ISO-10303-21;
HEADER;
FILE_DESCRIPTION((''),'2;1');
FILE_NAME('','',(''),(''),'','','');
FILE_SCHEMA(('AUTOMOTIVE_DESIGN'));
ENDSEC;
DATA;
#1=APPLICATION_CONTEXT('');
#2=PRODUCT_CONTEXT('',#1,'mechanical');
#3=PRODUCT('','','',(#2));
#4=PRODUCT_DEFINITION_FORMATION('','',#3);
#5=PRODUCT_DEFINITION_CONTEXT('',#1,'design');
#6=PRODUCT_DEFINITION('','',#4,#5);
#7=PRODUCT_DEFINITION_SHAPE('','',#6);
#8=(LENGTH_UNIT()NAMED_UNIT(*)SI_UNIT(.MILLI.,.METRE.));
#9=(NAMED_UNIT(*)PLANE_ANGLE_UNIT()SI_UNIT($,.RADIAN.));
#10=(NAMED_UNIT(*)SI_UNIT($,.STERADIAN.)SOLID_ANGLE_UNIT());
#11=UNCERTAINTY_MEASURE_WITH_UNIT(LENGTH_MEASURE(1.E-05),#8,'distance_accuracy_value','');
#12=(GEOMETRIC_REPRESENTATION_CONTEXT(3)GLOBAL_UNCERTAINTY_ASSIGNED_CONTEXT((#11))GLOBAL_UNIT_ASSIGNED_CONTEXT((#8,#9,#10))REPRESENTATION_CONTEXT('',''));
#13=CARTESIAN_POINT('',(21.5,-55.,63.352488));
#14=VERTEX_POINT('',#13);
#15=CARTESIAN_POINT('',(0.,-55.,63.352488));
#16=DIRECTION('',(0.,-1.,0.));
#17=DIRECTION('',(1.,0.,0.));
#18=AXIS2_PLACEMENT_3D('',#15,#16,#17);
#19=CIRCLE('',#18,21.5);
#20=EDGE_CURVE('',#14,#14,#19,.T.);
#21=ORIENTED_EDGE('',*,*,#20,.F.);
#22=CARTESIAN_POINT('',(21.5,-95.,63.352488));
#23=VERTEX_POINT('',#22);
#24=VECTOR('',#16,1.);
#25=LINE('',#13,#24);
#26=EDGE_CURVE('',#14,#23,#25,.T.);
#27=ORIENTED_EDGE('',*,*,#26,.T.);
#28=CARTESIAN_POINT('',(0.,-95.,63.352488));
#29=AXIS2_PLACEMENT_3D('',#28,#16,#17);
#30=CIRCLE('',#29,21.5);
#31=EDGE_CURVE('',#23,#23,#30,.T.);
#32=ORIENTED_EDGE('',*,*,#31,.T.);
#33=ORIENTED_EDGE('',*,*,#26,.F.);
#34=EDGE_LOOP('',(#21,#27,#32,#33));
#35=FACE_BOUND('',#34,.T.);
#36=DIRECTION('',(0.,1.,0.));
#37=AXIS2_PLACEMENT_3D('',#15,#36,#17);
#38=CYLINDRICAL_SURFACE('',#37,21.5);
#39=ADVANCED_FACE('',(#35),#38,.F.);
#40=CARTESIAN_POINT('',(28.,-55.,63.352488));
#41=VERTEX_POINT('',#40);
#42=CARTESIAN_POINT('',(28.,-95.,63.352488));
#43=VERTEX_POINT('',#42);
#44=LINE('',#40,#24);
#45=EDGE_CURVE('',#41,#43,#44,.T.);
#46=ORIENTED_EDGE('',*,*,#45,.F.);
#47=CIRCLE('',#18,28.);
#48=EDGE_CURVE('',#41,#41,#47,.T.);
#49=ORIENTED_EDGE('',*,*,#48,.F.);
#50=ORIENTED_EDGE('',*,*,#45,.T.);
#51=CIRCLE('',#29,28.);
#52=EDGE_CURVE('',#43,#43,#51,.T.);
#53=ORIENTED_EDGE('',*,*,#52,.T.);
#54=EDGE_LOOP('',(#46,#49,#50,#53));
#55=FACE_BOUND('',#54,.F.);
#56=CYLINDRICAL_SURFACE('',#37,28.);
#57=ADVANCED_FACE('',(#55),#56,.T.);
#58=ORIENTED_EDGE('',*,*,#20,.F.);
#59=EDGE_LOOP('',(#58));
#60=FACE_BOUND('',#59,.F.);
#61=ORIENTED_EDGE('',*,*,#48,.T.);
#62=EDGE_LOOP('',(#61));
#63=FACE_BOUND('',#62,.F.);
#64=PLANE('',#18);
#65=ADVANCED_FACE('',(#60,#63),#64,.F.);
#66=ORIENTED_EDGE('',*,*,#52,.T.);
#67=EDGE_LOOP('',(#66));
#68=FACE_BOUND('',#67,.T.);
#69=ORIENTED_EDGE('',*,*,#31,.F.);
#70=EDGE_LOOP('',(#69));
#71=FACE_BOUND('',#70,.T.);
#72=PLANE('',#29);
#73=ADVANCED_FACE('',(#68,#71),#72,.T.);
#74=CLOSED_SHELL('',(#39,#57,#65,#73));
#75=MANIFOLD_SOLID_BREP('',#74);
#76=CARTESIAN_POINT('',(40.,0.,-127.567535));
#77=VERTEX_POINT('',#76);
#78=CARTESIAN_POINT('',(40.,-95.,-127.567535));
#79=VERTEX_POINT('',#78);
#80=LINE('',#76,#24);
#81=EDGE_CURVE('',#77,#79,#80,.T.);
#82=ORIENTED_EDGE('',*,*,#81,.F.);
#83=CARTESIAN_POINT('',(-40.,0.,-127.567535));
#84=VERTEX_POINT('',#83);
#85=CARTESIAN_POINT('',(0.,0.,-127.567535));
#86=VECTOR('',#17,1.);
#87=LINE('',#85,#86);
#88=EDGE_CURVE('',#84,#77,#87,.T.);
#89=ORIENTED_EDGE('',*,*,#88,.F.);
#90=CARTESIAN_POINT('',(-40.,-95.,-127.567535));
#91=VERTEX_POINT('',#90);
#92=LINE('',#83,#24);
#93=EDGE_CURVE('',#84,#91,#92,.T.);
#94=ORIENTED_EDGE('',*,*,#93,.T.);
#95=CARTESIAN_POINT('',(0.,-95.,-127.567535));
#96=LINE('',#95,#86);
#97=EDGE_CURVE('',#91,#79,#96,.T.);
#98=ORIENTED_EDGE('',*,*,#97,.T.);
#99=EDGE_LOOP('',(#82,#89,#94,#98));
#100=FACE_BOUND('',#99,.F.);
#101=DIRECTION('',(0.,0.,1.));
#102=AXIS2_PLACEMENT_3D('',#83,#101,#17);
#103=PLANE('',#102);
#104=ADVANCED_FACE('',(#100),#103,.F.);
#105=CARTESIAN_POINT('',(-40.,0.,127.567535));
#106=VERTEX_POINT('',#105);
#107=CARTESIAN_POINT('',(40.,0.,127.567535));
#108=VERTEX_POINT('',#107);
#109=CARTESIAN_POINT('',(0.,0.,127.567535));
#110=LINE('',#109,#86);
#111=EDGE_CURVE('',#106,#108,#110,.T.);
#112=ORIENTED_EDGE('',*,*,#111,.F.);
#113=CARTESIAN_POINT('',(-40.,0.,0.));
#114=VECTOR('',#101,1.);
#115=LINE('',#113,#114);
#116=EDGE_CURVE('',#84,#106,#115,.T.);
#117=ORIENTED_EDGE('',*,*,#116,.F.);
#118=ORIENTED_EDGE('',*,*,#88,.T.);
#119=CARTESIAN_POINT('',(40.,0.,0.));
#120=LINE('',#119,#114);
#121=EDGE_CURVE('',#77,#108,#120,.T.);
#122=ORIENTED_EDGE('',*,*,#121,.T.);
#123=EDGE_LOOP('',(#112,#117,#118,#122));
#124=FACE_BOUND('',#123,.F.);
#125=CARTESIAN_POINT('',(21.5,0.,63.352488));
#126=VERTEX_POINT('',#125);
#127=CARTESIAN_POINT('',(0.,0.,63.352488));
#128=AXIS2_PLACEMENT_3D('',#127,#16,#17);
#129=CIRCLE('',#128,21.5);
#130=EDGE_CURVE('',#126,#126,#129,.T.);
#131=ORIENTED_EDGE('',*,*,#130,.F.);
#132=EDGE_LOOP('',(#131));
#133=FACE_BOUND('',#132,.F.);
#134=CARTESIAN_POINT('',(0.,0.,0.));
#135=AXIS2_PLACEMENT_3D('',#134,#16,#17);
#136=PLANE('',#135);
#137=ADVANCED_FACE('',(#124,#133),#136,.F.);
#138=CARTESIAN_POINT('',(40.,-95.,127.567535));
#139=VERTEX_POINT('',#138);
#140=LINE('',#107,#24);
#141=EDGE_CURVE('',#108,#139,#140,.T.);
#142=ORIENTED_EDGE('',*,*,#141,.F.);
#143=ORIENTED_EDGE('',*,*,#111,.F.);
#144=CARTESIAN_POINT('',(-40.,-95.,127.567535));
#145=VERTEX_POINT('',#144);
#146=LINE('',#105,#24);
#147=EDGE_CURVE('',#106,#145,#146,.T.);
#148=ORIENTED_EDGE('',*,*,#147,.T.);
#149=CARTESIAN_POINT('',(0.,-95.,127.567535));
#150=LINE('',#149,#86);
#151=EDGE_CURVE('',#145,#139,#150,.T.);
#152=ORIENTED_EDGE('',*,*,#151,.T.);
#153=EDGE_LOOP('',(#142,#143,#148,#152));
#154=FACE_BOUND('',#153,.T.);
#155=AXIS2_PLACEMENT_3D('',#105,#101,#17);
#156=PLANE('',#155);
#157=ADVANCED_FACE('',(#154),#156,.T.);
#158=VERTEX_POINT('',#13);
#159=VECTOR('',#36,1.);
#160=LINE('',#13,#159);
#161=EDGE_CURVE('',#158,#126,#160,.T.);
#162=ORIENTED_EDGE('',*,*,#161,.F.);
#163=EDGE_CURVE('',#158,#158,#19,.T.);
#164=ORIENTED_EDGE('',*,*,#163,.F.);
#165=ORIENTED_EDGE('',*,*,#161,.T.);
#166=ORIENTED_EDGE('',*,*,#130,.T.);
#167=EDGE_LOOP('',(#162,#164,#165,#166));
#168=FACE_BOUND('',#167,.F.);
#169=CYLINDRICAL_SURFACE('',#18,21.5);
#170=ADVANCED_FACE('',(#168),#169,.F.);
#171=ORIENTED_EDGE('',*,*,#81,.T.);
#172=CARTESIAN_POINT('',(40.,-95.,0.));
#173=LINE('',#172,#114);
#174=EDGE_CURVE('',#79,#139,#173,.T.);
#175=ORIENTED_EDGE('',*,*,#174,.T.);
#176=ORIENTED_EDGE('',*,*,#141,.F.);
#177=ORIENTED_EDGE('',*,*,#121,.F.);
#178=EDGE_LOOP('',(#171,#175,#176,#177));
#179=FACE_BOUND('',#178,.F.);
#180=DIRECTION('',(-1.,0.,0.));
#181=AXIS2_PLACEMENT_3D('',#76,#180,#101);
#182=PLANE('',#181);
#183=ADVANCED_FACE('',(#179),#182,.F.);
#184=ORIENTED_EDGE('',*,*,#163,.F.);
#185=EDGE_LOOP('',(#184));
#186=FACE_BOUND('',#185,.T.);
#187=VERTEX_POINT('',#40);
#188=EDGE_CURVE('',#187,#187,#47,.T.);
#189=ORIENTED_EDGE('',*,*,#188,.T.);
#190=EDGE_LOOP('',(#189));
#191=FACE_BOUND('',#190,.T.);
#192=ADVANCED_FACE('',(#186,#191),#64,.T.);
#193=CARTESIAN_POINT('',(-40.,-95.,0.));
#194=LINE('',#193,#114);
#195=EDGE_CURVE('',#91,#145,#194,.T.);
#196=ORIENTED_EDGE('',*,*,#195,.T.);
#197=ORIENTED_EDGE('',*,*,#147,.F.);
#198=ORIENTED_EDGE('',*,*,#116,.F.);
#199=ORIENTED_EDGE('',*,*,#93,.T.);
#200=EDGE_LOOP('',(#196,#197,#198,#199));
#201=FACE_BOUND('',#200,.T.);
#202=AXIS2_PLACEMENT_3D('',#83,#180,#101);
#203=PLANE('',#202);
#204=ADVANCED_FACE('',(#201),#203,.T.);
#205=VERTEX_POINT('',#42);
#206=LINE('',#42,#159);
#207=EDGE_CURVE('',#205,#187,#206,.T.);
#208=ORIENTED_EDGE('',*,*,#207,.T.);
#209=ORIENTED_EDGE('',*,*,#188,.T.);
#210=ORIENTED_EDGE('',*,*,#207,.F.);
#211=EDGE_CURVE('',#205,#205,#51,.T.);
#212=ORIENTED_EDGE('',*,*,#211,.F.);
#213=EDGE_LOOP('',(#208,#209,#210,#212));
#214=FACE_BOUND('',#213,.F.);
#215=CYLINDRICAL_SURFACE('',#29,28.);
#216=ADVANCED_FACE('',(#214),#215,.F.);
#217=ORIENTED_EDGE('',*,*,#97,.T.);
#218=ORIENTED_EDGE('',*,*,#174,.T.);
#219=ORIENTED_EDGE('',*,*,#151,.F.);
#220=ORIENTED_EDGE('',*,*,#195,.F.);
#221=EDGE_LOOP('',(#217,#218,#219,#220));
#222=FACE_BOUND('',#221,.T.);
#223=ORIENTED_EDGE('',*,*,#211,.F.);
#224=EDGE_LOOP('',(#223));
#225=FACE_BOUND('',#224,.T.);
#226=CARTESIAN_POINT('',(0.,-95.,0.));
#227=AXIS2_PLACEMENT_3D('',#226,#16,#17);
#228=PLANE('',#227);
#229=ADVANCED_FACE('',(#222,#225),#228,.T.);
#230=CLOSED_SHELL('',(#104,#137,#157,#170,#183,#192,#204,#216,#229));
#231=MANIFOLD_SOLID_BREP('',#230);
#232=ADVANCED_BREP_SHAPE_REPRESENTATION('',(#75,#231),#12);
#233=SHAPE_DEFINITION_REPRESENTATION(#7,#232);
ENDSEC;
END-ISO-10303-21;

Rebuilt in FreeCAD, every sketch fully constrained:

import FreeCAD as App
import Part
import Sketcher

V = App.Vector
Q = App.Units.Quantity

doc = App.newDocument("Part")
body = doc.addObject("PartDesign::Body", "Body")

sketch1 = body.newObject("Sketcher::SketchObject", "Sketch")
sketch1.AttachmentSupport = (doc.getObject("XZ_Plane"), [""])
sketch1.MapMode = "FlatFace"
sketch1.addGeometry(Part.LineSegment(V(-40, 128, 0), V(-40, -128, 0)), False)
sketch1.addGeometry(Part.LineSegment(V(-40, -128, 0), V(40, -128, 0)), False)
sketch1.addGeometry(Part.LineSegment(V(40, -128, 0), V(40, 128, 0)), False)
sketch1.addGeometry(Part.LineSegment(V(40, 128, 0), V(-40, 128, 0)), False)
sketch1.addConstraint(Sketcher.Constraint("Coincident", 0, 2, 1, 1))
sketch1.addConstraint(Sketcher.Constraint("Coincident", 1, 2, 2, 1))
sketch1.addConstraint(Sketcher.Constraint("Coincident", 2, 2, 3, 1))
sketch1.addConstraint(Sketcher.Constraint("Coincident", 3, 2, 0, 1))
sketch1.addConstraint(Sketcher.Constraint("Vertical", 0))
sketch1.addConstraint(Sketcher.Constraint("Horizontal", 1))
sketch1.addConstraint(Sketcher.Constraint("Vertical", 2))
sketch1.addConstraint(Sketcher.Constraint("Horizontal", 3))
sketch1.addConstraint(Sketcher.Constraint("Symmetric", 0, 2, 2, 2, -1, 1))
sketch1.addConstraint(Sketcher.Constraint("DistanceX", 1, 1, 1, 2, Q("80 mm")))
sketch1.addConstraint(Sketcher.Constraint("DistanceY", 0, 2, 0, 1, Q("255.13507 mm")))
pad1 = body.newObject("PartDesign::Pad", "Pad")
pad1.Profile = sketch1
pad1.Length = 95

sketch2 = body.newObject("Sketcher::SketchObject", "Sketch001")
sketch2.AttachmentSupport = (doc.getObject("XZ_Plane"), [""])
sketch2.MapMode = "FlatFace"
sketch2.AttachmentOffset = App.Placement(V(0, 0, 95), App.Rotation())
sketch2.addGeometry(Part.Circle(V(0, 63, 0), V(0, 0, 1), 28), False)
sketch2.addConstraint(Sketcher.Constraint("PointOnObject", 0, 3, -2))
sketch2.addConstraint(Sketcher.Constraint("Diameter", 0, Q("56 mm")))
sketch2.addConstraint(Sketcher.Constraint("DistanceY", -1, 1, 0, 3, Q("63.352488 mm")))
pocket1 = body.newObject("PartDesign::Pocket", "Pocket")
pocket1.Profile = sketch2
pocket1.Length = 40

sketch3 = body.newObject("Sketcher::SketchObject", "Sketch002")
sketch3.AttachmentSupport = (doc.getObject("XZ_Plane"), [""])
sketch3.MapMode = "FlatFace"
sketch3.AttachmentOffset = App.Placement(V(0, 0, 55), App.Rotation())
sketch3.addGeometry(Part.Circle(V(0, 63, 0), V(0, 0, 1), 22), False)
sketch3.addConstraint(Sketcher.Constraint("PointOnObject", 0, 3, -2))
sketch3.addConstraint(Sketcher.Constraint("Diameter", 0, Q("43 mm")))
sketch3.addConstraint(Sketcher.Constraint("DistanceY", -1, 1, 0, 3, Q("63.352488 mm")))
pocket2 = body.newObject("PartDesign::Pocket", "Pocket001")
pocket2.Profile = sketch3
pocket2.Type = "ThroughAll"
body2 = doc.addObject("PartDesign::Body", "Body001")

sketch4 = body2.newObject("Sketcher::SketchObject", "Sketch003")
sketch4.AttachmentSupport = (doc.getObject("XZ_Plane001"), [""])
sketch4.MapMode = "FlatFace"
sketch4.AttachmentOffset = App.Placement(V(0, 0, 55), App.Rotation())
sketch4.addGeometry(Part.Circle(V(0, 63, 0), V(0, 0, 1), 28), False)
sketch4.addGeometry(Part.Circle(V(0, 63, 0), V(0, 0, 1), 22), False)
sketch4.addConstraint(Sketcher.Constraint("Coincident", 1, 3, 0, 3))
sketch4.addConstraint(Sketcher.Constraint("PointOnObject", 0, 3, -2))
sketch4.addConstraint(Sketcher.Constraint("Diameter", 0, Q("56 mm")))
sketch4.addConstraint(Sketcher.Constraint("Diameter", 1, Q("43 mm")))
sketch4.addConstraint(Sketcher.Constraint("DistanceY", -1, 1, 0, 3, Q("63.352488 mm")))
pad2 = body2.newObject("PartDesign::Pad", "Pad001")
pad2.Profile = sketch4
pad2.Length = 40

doc.recompute()
